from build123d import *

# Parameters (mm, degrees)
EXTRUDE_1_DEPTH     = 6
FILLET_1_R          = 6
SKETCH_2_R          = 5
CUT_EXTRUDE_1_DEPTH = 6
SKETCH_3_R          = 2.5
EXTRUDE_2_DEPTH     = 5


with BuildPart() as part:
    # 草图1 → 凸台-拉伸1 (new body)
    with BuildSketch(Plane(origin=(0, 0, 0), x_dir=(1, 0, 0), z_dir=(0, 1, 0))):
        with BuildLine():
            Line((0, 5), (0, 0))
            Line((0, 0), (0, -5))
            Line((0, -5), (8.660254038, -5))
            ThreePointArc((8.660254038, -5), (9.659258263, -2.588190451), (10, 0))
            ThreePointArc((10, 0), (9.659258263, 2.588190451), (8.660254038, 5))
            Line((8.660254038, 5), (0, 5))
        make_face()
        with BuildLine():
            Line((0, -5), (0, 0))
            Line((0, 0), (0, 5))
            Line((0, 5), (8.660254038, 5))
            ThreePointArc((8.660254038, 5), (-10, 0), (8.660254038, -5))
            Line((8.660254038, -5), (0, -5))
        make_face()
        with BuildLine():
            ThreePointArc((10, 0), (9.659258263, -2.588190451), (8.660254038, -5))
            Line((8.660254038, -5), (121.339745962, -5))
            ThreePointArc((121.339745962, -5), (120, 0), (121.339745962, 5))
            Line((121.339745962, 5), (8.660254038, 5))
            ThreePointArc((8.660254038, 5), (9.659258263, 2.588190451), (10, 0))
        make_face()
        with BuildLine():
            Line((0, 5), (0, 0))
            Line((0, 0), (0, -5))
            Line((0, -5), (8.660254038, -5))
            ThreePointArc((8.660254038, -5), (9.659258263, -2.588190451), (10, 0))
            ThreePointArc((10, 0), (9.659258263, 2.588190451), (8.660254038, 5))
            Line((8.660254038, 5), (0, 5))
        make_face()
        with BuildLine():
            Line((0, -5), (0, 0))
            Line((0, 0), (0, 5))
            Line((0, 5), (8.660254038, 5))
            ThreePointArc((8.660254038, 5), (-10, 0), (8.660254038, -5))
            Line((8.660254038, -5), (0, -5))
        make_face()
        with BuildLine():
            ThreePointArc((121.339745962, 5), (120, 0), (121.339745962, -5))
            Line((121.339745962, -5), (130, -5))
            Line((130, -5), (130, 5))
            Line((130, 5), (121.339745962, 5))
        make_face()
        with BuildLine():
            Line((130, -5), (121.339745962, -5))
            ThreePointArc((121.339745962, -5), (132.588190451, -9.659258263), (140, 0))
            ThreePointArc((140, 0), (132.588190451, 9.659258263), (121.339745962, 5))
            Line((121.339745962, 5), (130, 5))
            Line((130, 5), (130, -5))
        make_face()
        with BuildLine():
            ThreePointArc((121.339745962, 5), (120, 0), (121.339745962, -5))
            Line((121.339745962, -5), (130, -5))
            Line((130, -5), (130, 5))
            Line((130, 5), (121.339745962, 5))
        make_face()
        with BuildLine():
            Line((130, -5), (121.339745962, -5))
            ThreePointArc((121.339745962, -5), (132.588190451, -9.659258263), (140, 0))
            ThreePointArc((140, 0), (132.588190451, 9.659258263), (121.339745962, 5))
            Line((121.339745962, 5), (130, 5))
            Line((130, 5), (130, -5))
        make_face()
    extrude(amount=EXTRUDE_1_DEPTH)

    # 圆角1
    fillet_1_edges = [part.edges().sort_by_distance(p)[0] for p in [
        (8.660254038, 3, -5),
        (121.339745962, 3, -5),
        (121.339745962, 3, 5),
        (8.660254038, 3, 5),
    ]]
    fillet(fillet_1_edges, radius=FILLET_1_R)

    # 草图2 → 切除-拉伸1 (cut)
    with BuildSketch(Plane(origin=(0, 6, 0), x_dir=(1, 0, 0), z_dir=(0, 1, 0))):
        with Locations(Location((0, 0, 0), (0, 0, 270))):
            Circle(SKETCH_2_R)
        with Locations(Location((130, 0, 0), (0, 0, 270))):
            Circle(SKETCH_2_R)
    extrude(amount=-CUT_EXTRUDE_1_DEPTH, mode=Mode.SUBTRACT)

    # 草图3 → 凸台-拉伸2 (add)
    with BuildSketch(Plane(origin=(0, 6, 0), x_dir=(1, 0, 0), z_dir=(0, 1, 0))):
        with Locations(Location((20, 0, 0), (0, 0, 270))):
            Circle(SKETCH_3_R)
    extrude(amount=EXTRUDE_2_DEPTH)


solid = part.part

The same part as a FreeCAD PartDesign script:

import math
import FreeCAD as App
import Part
import Sketcher
from FreeCAD import Vector


def edges_at(feature, points):
    """Names of the edges that pass closest to the given points."""
    edges = feature.Shape.Edges
    near = lambda p: min(range(len(edges)), key=lambda i: edges[i].distToShape(Part.Vertex(*p))[0])
    return sorted({f"Edge{near(p) + 1}" for p in points})

doc = App.newDocument("Part")
body = doc.addObject("PartDesign::Body", "Body")

# Sketch on XZ plane
sketch1 = body.newObject("Sketcher::SketchObject", "Sketch")
sketch1.AttachmentSupport = (doc.getObject("XZ_Plane"), [""])
sketch1.MapMode = "FlatFace"
sketch1.addGeometry([
    Part.LineSegment(Vector(9, 5, 0), Vector(121, 5, 0)),  # 0
    Part.ArcOfCircle(Part.Circle(Vector(130, 0, 0), Vector(0, 0, 1), 10), math.radians(0), math.radians(150)),  # 1
    Part.ArcOfCircle(Part.Circle(Vector(130, 0, 0), Vector(0, 0, 1), 10), math.radians(-150), math.radians(0)),  # 2
    Part.LineSegment(Vector(121, -5, 0), Vector(9, -5, 0)),  # 3
    Part.ArcOfCircle(Part.Circle(Vector(0, 0, 0), Vector(0, 0, 1), 10), math.radians(30), math.radians(330)),  # 4
], False)
sketch1.addConstraint([
    Sketcher.Constraint("Coincident", 0, 2, 1, 2),
    Sketcher.Constraint("Tangent", 1, 1, 2, 2),
    Sketcher.Constraint("Coincident", 2, 1, 3, 1),
    Sketcher.Constraint("Coincident", 3, 2, 4, 2),
    Sketcher.Constraint("Coincident", 4, 1, 0, 1),
    Sketcher.Constraint("Horizontal", 0),
    Sketcher.Constraint("Horizontal", 3),
    Sketcher.Constraint("Coincident", 4, 3, -1, 1),
    Sketcher.Constraint("Equal", 1, 2),
    Sketcher.Constraint("Equal", 2, 4),
    Sketcher.Constraint("Symmetric", 0, 2, 2, 1, -1),
    Sketcher.Constraint("PointOnObject", 1, 1, -1),
    Sketcher.Constraint("Radius", 1, 10.0),
    Sketcher.Constraint("DistanceX", -1, 1, 1, 3, 130.0),
    Sketcher.Constraint("DistanceY", -1, 1, 0, 2, 5.0),
])
pad1 = body.newObject("PartDesign::Pad", "Pad")
pad1.Profile = sketch1
pad1.Length = 6
pad1.Reversed = True
doc.recompute()

fillet = body.newObject("PartDesign::Fillet", "Fillet")
fillet.Base = (pad1, edges_at(pad1, [
    (8.66, 3, -5),
    (121.34, 3, -5),
    (121.34, 3, 5),
    (8.66, 3, 5),
]))
fillet.Radius = 6

# Sketch on XZ plane
sketch2 = body.newObject("Sketcher::SketchObject", "Sketch001")
sketch2.AttachmentSupport = (doc.getObject("XZ_Plane"), [""])
sketch2.MapMode = "FlatFace"
sketch2.AttachmentOffset = App.Placement(Vector(0, 0, -6), App.Rotation())
sketch2.addGeometry([
    Part.Circle(Vector(0, 0, 0), Vector(0, 0, 1), 5),
    Part.Circle(Vector(130, 0, 0), Vector(0, 0, 1), 5),
], False)
sketch2.addConstraint([
    Sketcher.Constraint("Coincident", 0, 3, -1, 1),
    Sketcher.Constraint("Equal", 0, 1),
    Sketcher.Constraint("PointOnObject", 1, 3, -1),
    Sketcher.Constraint("Diameter", 0, 10.0),
    Sketcher.Constraint("DistanceX", -1, 1, 1, 3, 130.0),
])
pocket1 = body.newObject("PartDesign::Pocket", "Pocket")
pocket1.Profile = sketch2
pocket1.Length = 6
pocket1.Reversed = True

# Sketch on XZ plane
sketch3 = body.newObject("Sketcher::SketchObject", "Sketch002")
sketch3.AttachmentSupport = (doc.getObject("XZ_Plane"), [""])
sketch3.MapMode = "FlatFace"
sketch3.AttachmentOffset = App.Placement(Vector(0, 0, -6), App.Rotation())
sketch3.addGeometry(Part.Circle(Vector(20, 0, 0), Vector(0, 0, 1), 2.5), False)
sketch3.addConstraint([
    Sketcher.Constraint("PointOnObject", 0, 3, -1),
    Sketcher.Constraint("Diameter", 0, 5.0),
    Sketcher.Constraint("DistanceX", -1, 1, 0, 3, 20.0),
])
pad2 = body.newObject("PartDesign::Pad", "Pad001")
pad2.Profile = sketch3
pad2.Length = 5
pad2.Reversed = True

doc.recompute()
